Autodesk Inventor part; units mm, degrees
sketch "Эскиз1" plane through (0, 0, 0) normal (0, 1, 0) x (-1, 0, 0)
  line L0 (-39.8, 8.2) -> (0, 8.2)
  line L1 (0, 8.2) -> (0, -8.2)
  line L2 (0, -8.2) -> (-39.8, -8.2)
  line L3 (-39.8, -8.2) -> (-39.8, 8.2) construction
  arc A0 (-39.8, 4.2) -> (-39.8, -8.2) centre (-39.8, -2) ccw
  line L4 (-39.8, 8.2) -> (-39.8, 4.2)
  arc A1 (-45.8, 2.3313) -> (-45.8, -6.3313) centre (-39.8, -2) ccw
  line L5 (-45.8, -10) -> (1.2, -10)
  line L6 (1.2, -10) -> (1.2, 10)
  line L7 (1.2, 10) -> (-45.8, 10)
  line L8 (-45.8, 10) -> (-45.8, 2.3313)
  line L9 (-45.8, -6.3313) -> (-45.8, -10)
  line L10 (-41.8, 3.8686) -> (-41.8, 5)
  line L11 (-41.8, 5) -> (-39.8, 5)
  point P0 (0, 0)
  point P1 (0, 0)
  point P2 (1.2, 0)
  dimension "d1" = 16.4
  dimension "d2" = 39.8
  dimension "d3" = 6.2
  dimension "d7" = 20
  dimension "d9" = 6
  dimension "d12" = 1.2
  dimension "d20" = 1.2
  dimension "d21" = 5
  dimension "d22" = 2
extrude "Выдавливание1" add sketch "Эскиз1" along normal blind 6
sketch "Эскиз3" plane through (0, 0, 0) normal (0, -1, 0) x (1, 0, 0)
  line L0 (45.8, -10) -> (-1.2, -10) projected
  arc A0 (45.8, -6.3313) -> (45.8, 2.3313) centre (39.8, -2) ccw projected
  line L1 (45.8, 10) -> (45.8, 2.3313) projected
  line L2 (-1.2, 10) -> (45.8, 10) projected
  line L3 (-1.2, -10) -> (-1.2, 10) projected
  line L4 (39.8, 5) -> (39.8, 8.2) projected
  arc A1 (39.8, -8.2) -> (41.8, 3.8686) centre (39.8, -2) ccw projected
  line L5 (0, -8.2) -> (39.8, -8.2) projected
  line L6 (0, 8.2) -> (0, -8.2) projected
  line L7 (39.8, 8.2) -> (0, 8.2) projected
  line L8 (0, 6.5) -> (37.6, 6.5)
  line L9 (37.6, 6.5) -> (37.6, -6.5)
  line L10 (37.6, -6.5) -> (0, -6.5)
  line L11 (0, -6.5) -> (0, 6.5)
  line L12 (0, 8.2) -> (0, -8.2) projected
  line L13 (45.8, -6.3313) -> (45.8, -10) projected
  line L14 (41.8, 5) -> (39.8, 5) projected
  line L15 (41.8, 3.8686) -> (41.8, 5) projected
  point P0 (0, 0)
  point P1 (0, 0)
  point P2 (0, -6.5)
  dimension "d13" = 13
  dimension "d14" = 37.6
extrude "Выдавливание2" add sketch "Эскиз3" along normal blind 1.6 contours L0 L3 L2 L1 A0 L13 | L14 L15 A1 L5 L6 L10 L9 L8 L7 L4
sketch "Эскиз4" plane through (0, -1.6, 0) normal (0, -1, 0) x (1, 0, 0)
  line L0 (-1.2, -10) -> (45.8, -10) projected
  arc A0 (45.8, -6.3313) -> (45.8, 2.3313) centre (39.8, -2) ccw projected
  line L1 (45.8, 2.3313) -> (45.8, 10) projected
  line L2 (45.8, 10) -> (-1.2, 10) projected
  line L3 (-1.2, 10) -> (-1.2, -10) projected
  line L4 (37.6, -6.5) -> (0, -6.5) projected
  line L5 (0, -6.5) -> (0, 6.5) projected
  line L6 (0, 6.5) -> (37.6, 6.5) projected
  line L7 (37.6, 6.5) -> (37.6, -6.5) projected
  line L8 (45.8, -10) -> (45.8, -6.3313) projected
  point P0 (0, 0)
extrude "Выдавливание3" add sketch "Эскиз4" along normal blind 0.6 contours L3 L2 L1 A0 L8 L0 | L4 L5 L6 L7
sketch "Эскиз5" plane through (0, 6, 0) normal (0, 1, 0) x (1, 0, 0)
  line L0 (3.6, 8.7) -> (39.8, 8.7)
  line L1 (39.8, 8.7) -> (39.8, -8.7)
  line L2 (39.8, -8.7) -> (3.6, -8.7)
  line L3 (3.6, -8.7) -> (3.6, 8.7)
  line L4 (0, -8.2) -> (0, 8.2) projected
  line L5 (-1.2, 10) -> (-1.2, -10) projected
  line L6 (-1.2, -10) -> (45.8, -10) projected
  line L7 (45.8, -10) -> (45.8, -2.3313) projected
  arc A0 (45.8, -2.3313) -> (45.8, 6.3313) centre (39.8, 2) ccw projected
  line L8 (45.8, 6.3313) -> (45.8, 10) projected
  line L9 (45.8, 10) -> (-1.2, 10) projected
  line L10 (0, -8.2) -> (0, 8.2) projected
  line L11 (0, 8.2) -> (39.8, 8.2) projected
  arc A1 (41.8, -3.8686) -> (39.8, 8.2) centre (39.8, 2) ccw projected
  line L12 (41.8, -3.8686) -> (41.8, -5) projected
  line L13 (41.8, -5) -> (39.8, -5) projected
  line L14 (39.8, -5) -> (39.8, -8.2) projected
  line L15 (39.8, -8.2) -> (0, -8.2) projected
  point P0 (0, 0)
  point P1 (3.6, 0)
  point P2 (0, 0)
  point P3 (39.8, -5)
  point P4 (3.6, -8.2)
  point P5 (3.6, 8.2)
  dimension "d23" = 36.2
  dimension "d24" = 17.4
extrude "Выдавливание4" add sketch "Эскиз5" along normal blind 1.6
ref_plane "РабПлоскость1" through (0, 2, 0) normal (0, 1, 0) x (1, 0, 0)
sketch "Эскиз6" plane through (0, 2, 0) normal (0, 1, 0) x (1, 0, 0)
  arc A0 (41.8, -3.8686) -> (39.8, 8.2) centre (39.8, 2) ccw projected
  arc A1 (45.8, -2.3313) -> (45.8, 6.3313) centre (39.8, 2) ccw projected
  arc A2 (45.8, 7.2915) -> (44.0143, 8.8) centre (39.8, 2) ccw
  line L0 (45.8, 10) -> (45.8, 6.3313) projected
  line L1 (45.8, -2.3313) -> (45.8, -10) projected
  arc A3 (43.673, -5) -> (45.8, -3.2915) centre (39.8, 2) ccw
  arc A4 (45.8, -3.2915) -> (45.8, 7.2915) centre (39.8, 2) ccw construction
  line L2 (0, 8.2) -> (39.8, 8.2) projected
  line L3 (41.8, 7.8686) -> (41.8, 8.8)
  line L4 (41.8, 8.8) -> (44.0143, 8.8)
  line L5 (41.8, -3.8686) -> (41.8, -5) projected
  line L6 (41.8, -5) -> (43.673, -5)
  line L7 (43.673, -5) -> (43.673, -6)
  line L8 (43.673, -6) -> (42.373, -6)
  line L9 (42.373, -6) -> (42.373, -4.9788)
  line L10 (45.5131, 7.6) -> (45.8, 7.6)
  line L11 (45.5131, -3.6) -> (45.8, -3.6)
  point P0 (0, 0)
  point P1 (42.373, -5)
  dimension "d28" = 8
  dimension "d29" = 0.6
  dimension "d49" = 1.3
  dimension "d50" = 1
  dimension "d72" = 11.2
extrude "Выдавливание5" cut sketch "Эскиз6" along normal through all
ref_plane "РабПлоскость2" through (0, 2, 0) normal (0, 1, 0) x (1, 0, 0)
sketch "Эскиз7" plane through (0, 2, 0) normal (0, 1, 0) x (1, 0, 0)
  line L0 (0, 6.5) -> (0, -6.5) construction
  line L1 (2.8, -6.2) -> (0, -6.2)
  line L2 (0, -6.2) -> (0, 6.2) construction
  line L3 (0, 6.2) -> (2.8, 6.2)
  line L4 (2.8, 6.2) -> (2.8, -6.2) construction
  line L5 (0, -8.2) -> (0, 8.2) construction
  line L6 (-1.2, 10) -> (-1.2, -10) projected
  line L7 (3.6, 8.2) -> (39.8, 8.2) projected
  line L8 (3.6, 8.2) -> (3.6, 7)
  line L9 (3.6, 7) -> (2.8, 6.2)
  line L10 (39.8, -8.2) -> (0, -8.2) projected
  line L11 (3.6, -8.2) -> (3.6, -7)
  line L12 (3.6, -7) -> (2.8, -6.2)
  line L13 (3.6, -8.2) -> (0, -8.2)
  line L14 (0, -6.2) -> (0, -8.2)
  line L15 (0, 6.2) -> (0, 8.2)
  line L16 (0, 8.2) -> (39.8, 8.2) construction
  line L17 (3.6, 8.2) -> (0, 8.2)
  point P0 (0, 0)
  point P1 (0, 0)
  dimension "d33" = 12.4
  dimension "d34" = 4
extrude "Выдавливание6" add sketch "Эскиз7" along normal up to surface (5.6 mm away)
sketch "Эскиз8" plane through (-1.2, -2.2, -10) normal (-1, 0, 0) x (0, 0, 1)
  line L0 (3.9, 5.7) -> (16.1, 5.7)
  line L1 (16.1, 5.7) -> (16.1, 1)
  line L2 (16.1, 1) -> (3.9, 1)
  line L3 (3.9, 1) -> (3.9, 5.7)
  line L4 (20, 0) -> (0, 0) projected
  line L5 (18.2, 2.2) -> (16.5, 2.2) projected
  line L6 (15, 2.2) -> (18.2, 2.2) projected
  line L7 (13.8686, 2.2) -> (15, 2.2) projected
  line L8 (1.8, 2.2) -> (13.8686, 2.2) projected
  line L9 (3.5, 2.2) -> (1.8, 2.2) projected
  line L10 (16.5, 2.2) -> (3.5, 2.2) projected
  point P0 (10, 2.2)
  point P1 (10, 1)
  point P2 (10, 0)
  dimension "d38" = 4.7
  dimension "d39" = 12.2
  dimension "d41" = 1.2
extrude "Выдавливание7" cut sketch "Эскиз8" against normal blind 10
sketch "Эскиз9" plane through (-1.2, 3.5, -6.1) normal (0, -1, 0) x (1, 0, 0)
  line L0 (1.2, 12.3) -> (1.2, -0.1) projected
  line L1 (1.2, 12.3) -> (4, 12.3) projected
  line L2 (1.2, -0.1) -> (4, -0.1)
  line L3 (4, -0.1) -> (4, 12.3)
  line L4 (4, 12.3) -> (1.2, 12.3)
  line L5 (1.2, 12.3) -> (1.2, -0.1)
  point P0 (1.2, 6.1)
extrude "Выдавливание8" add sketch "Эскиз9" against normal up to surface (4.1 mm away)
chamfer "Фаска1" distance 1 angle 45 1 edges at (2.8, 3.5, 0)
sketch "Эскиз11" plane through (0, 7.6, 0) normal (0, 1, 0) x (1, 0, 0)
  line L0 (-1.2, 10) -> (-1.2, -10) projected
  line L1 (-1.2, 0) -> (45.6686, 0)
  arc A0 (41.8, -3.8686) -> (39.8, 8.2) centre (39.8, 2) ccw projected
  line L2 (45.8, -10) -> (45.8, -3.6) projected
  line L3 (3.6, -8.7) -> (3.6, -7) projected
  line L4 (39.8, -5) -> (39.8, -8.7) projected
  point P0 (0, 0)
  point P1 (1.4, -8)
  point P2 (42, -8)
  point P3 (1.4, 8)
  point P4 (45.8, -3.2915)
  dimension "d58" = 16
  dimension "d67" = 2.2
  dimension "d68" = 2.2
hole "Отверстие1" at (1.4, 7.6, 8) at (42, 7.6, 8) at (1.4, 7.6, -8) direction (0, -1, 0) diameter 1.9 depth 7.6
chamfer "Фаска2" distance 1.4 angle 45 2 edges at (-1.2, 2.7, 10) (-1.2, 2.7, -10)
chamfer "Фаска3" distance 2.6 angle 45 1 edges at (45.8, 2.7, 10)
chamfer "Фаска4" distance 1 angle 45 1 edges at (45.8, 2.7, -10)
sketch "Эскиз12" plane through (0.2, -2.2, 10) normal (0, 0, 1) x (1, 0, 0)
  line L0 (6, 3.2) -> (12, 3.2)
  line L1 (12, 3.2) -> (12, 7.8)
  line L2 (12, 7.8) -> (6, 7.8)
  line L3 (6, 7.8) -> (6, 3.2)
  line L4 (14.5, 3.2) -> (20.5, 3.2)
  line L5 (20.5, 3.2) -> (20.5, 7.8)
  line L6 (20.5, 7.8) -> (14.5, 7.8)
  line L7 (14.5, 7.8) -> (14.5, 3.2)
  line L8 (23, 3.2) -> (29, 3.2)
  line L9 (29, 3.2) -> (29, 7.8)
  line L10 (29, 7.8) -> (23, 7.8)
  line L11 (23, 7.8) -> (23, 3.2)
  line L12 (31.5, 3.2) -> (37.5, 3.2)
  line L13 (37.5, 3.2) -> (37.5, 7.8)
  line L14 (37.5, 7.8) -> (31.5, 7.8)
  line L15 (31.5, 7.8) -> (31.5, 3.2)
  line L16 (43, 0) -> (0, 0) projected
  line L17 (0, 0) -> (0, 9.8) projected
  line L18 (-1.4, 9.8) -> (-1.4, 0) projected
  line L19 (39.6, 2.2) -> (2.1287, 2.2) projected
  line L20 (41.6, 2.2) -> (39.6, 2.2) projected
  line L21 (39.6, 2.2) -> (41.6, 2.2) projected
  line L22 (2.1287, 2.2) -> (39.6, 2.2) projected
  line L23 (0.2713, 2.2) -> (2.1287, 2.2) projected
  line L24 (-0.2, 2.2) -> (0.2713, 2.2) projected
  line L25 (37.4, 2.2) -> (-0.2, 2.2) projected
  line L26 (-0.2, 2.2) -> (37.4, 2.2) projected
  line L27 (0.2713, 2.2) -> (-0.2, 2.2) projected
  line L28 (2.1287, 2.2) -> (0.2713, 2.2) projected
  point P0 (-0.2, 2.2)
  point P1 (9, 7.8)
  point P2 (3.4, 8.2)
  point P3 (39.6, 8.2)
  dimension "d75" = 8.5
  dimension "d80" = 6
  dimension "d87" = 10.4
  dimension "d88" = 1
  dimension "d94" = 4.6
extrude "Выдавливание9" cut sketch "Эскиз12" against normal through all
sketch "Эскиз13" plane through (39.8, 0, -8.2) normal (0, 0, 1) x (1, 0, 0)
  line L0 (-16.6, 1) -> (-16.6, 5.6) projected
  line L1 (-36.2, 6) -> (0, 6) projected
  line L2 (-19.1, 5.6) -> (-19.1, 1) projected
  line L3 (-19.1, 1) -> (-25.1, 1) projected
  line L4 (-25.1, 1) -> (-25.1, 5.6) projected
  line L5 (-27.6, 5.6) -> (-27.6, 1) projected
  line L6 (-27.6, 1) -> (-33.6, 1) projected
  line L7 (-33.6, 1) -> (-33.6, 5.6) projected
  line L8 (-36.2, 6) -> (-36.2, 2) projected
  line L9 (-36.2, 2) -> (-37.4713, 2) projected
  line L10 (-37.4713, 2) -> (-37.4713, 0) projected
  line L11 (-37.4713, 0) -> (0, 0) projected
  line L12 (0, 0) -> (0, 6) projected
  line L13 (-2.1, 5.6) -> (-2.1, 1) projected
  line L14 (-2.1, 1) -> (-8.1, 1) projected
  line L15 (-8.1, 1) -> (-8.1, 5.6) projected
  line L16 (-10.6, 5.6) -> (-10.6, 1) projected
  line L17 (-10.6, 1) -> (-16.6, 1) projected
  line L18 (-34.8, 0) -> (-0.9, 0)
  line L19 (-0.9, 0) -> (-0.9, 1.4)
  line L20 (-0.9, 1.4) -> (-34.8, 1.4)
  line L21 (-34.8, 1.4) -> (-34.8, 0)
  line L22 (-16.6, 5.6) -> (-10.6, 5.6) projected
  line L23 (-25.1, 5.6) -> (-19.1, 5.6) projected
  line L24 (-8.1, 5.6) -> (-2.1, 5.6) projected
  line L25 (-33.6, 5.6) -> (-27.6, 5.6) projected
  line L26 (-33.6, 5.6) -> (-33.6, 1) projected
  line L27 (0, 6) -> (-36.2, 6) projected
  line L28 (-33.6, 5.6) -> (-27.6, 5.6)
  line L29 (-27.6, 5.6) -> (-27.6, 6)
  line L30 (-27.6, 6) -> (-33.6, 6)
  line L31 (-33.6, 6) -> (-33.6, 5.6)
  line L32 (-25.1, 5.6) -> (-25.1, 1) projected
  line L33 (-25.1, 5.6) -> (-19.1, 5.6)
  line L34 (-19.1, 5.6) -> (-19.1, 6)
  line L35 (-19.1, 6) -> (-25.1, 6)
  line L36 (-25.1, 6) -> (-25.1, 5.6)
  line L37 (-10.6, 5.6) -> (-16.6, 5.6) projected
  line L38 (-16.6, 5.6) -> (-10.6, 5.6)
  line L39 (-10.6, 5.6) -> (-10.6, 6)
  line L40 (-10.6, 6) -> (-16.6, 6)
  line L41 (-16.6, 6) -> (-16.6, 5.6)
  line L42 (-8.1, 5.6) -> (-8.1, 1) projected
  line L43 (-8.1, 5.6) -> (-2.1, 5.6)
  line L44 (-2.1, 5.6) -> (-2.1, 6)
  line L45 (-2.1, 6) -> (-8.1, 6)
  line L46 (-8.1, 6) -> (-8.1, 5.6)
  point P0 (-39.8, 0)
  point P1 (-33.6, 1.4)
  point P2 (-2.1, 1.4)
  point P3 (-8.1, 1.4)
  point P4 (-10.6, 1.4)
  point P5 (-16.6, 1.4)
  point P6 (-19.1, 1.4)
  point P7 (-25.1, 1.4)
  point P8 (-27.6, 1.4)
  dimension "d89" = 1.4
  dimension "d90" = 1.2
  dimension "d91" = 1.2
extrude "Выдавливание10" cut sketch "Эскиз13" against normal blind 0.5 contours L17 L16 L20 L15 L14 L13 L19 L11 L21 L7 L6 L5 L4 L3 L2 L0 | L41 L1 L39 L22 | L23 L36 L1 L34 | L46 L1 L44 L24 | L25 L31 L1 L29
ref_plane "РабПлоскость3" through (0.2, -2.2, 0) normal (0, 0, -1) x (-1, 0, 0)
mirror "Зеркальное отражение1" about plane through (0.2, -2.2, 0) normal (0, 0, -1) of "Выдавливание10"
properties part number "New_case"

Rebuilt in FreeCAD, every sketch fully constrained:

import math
import FreeCAD as App
import Part
import Sketcher
Q = App.Units.Quantity


def edges_at(feature, points):
    """Names of the edges that pass closest to the given points."""
    edges = feature.Shape.Edges
    near = lambda p: min(range(len(edges)), key=lambda i: edges[i].distToShape(Part.Vertex(*p))[0])
    return sorted({f"Edge{near(p) + 1}" for p in points})

doc = App.newDocument("Part")
body = doc.addObject("PartDesign::Body", "Body")

sketch1 = body.newObject("Sketcher::SketchObject", "Sketch")
sketch1.AttachmentSupport = (doc.getObject("XZ_Plane"), [""])
sketch1.MapMode = "FlatFace"
sketch1.addGeometry([
    Part.LineSegment(App.Vector(45.8, 10, 0), App.Vector(45.8, 2.3, 0)),
    Part.ArcOfCircle(Part.Circle(App.Vector(39.8, -2, 0), App.Vector(0, 0, 1), 7.4), math.radians(-36), math.radians(36)),
    Part.LineSegment(App.Vector(45.8, -6.3, 0), App.Vector(45.8, -10, 0)),
    Part.LineSegment(App.Vector(45.8, -10, 0), App.Vector(-1.2, -10, 0)),
    Part.LineSegment(App.Vector(-1.2, -10, 0), App.Vector(-1.2, 10, 0)),
    Part.LineSegment(App.Vector(-1.2, 10, 0), App.Vector(45.8, 10, 0)),
    Part.LineSegment(App.Vector(39.8, 5, 0), App.Vector(39.8, 8.2, 0)),
    Part.LineSegment(App.Vector(39.8, 8.2, 0), App.Vector(0, 8.2, 0)),
    Part.LineSegment(App.Vector(0, 8.2, 0), App.Vector(0, -8.2, 0)),
    Part.LineSegment(App.Vector(0, -8.2, 0), App.Vector(39.8, -8.2, 0)),
    Part.ArcOfCircle(Part.Circle(App.Vector(39.8, -2, 0), App.Vector(0, 0, 1), 6.2), math.radians(-90), math.radians(71)),
    Part.LineSegment(App.Vector(41.8, 3.9, 0), App.Vector(41.8, 5, 0)),
    Part.LineSegment(App.Vector(41.8, 5, 0), App.Vector(39.8, 5, 0)),
], False)
sketch1.addConstraint([
    Sketcher.Constraint("Coincident", 0, 2, 1, 2),
    Sketcher.Constraint("Coincident", 1, 1, 2, 1),
    Sketcher.Constraint("Coincident", 2, 2, 3, 1),
    Sketcher.Constraint("Coincident", 3, 2, 4, 1),
    Sketcher.Constraint("Coincident", 4, 2, 5, 1),
    Sketcher.Constraint("Coincident", 5, 2, 0, 1),
    Sketcher.Constraint("Coincident", 6, 2, 7, 1),
    Sketcher.Constraint("Coincident", 7, 2, 8, 1),
    Sketcher.Constraint("Coincident", 8, 2, 9, 1),
    Sketcher.Constraint("Tangent", 9, 2, 10, 1),
    Sketcher.Constraint("Coincident", 10, 2, 11, 1),
    Sketcher.Constraint("Coincident", 11, 2, 12, 1),
    Sketcher.Constraint("Coincident", 12, 2, 6, 1),
    Sketcher.Constraint("Vertical", 0),
    Sketcher.Constraint("Vertical", 2),
    Sketcher.Constraint("Horizontal", 3),
    Sketcher.Constraint("Vertical", 4),
    Sketcher.Constraint("Horizontal", 5),
    Sketcher.Constraint("Vertical", 6),
    Sketcher.Constraint("Horizontal", 7),
    Sketcher.Constraint("Vertical", 8),
    Sketcher.Constraint("Horizontal", 9),
    Sketcher.Constraint("Vertical", 11),
    Sketcher.Constraint("Horizontal", 12),
    Sketcher.Constraint("Coincident", 10, 3, 1, 3),
    Sketcher.Constraint("Symmetric", 7, 2, 8, 2, -1, 1),
    Sketcher.Constraint("Symmetric", 2, 2, 5, 2, -1),
    Sketcher.Constraint("Vertical", 10, 3, 6, 2),
    Sketcher.Constraint("Radius", 10, Q("6.2 mm")),
    Sketcher.Constraint("DistanceX", 12, 2, 12, 1, Q("2 mm")),
    Sketcher.Constraint("DistanceY", 4, 1, 4, 2, Q("20 mm")),
    Sketcher.Constraint("DistanceX", 7, 2, 7, 1, Q("39.8 mm")),
    Sketcher.Constraint("DistanceY", 8, 2, 8, 1, Q("16.4 mm")),
    Sketcher.Constraint("DistanceY", -1, 1, 11, 2, Q("5 mm")),
    Sketcher.Constraint("DistanceX", 1, 3, 0, 2, Q("6 mm")),
    Sketcher.Constraint("DistanceX", 3, 2, -1, 1, Q("1.2 mm")),
    Sketcher.Constraint("Radius", 1, Q("7.4 mm")),
])
pad1 = body.newObject("PartDesign::Pad", "Pad")
pad1.Profile = sketch1
pad1.Length = 6
pad1.Reversed = True

sketch2 = body.newObject("Sketcher::SketchObject", "Sketch001")
sketch2.AttachmentSupport = (doc.getObject("XZ_Plane"), [""])
sketch2.MapMode = "FlatFace"
sketch2.addGeometry([
    Part.LineSegment(App.Vector(-1.2, -10, 0), App.Vector(45.8, -10, 0)),
    Part.LineSegment(App.Vector(45.8, -10, 0), App.Vector(45.8, -6.3, 0)),
    Part.ArcOfCircle(Part.Circle(App.Vector(39.8, -2, 0), App.Vector(0, 0, 1), 7.4), math.radians(-36), math.radians(36)),
    Part.LineSegment(App.Vector(45.8, 2.3, 0), App.Vector(45.8, 10, 0)),
    Part.LineSegment(App.Vector(45.8, 10, 0), App.Vector(-1.2, 10, 0)),
    Part.LineSegment(App.Vector(-1.2, 10, 0), App.Vector(-1.2, -10, 0)),
    Part.LineSegment(App.Vector(0, -6.5, 0), App.Vector(0, 6.5, 0)),
    Part.LineSegment(App.Vector(0, 6.5, 0), App.Vector(37.6, 6.5, 0)),
    Part.LineSegment(App.Vector(37.6, 6.5, 0), App.Vector(37.6, -6.5, 0)),
    Part.LineSegment(App.Vector(37.6, -6.5, 0), App.Vector(0, -6.5, 0)),
], False)
sketch2.addConstraint([
    Sketcher.Constraint("Coincident", 0, 2, 1, 1),
    Sketcher.Constraint("Coincident", 1, 2, 2, 1),
    Sketcher.Constraint("Coincident", 2, 2, 3, 1),
    Sketcher.Constraint("Coincident", 3, 2, 4, 1),
    Sketcher.Constraint("Coincident", 4, 2, 5, 1),
    Sketcher.Constraint("Coincident", 5, 2, 0, 1),
    Sketcher.Constraint("Coincident", 6, 2, 7, 1),
    Sketcher.Constraint("Coincident", 7, 2, 8, 1),
    Sketcher.Constraint("Coincident", 8, 2, 9, 1),
    Sketcher.Constraint("Coincident", 9, 2, 6, 1),
    Sketcher.Constraint("Horizontal", 0),
    Sketcher.Constraint("Vertical", 1),
    Sketcher.Constraint("Vertical", 3),
    Sketcher.Constraint("Horizontal", 4),
    Sketcher.Constraint("Vertical", 5),
    Sketcher.Constraint("Vertical", 6),
    Sketcher.Constraint("Horizontal", 7),
    Sketcher.Constraint("Vertical", 8),
    Sketcher.Constraint("Horizontal", 9),
    Sketcher.Constraint("Symmetric", 6, 2, 9, 2, -1, 1),
    Sketcher.Constraint("Symmetric", 0, 2, 3, 2, -1),
    Sketcher.Constraint("DistanceY", 6, 1, 6, 2, Q("13 mm")),
    Sketcher.Constraint("DistanceX", 7, 1, 7, 2, Q("37.6 mm")),
    Sketcher.Constraint("Radius", 2, Q("7.4 mm")),
    Sketcher.Constraint("DistanceX", 0, 1, 0, 2, Q("47 mm")),
    Sketcher.Constraint("DistanceY", 5, 2, 5, 1, Q("20 mm")),
    Sketcher.Constraint("DistanceY", 2, 3, -1, 1, Q("2 mm")),
    Sketcher.Constraint("DistanceX", 2, 3, 0, 2, Q("6 mm")),
    Sketcher.Constraint("DistanceX", -1, 1, 2, 3, Q("39.8 mm")),
])
pad2 = body.newObject("PartDesign::Pad", "Pad001")
pad2.Profile = sketch2
pad2.Length = 1.6

sketch3 = body.newObject("Sketcher::SketchObject", "Sketch002")
sketch3.AttachmentSupport = (doc.getObject("XZ_Plane"), [""])
sketch3.MapMode = "FlatFace"
sketch3.AttachmentOffset = App.Placement(App.Vector(0, 0, 1.6), App.Rotation())
sketch3.addGeometry([
    Part.LineSegment(App.Vector(-1.2, 10, 0), App.Vector(-1.2, -10, 0)),
    Part.LineSegment(App.Vector(-1.2, -10, 0), App.Vector(45.8, -10, 0)),
    Part.LineSegment(App.Vector(45.8, -10, 0), App.Vector(45.8, -6.3, 0)),
    Part.ArcOfCircle(Part.Circle(App.Vector(39.8, -2, 0), App.Vector(0, 0, 1), 7.4), math.radians(-36), math.radians(36)),
    Part.LineSegment(App.Vector(45.8, 2.3, 0), App.Vector(45.8, 10, 0)),
    Part.LineSegment(App.Vector(45.8, 10, 0), App.Vector(-1.2, 10, 0)),
], False)
sketch3.addConstraint([
    Sketcher.Constraint("Coincident", 0, 2, 1, 1),
    Sketcher.Constraint("Coincident", 1, 2, 2, 1),
    Sketcher.Constraint("Coincident", 2, 2, 3, 1),
    Sketcher.Constraint("Coincident", 3, 2, 4, 1),
    Sketcher.Constraint("Coincident", 4, 2, 5, 1),
    Sketcher.Constraint("Coincident", 5, 2, 0, 1),
    Sketcher.Constraint("Vertical", 0),
    Sketcher.Constraint("Horizontal", 1),
    Sketcher.Constraint("Vertical", 2),
    Sketcher.Constraint("Vertical", 4),
    Sketcher.Constraint("Horizontal", 5),
    Sketcher.Constraint("Symmetric", 1, 2, 4, 2, -1),
    Sketcher.Constraint("Radius", 3, Q("7.4 mm")),
    Sketcher.Constraint("DistanceX", 1, 1, 1, 2, Q("47 mm")),
    Sketcher.Constraint("DistanceY", 0, 2, 0, 1, Q("20 mm")),
    Sketcher.Constraint("DistanceY", 3, 3, -1, 1, Q("2 mm")),
    Sketcher.Constraint("DistanceX", 0, 2, 3, 3, Q("41 mm")),
    Sketcher.Constraint("DistanceX", -1, 1, 3, 3, Q("39.8 mm")),
])
pad3 = body.newObject("PartDesign::Pad", "Pad002")
pad3.Profile = sketch3
pad3.Length = 0.6

sketch4 = body.newObject("Sketcher::SketchObject", "Sketch003")
sketch4.AttachmentSupport = (doc.getObject("XZ_Plane"), [""])
sketch4.MapMode = "FlatFace"
sketch4.AttachmentOffset = App.Placement(App.Vector(0, 0, -6), App.Rotation())
sketch4.addGeometry([
    Part.LineSegment(App.Vector(45.8, -10, 0), App.Vector(-1.2, -10, 0)),
    Part.LineSegment(App.Vector(-1.2, -10, 0), App.Vector(-1.2, 10, 0)),
    Part.LineSegment(App.Vector(-1.2, 10, 0), App.Vector(45.8, 10, 0)),
    Part.LineSegment(App.Vector(45.8, 10, 0), App.Vector(45.8, 2.3, 0)),
    Part.ArcOfCircle(Part.Circle(App.Vector(39.8, -2, 0), App.Vector(0, 0, 1), 7.4), math.radians(-36), math.radians(36)),
    Part.LineSegment(App.Vector(45.8, -6.3, 0), App.Vector(45.8, -10, 0)),
    Part.LineSegment(App.Vector(3.6, -8.2, 0), App.Vector(3.6, -8.7, 0)),
    Part.LineSegment(App.Vector(3.6, -8.7, 0), App.Vector(39.8, -8.7, 0)),
    Part.LineSegment(App.Vector(39.8, -8.7, 0), App.Vector(39.8, -8.2, 0)),
    Part.ArcOfCircle(Part.Circle(App.Vector(39.8, -2, 0), App.Vector(0, 0, 1), 6.2), math.radians(-90), math.radians(71)),
    Part.LineSegment(App.Vector(41.8, 3.9, 0), App.Vector(41.8, 5, 0)),
    Part.LineSegment(App.Vector(41.8, 5, 0), App.Vector(39.8, 5, 0)),
    Part.LineSegment(App.Vector(39.8, 5, 0), App.Vector(39.8, 8.7, 0)),
    Part.LineSegment(App.Vector(39.8, 8.7, 0), App.Vector(3.6, 8.7, 0)),
    Part.LineSegment(App.Vector(3.6, 8.7, 0), App.Vector(3.6, 8.2, 0)),
    Part.LineSegment(App.Vector(3.6, 8.2, 0), App.Vector(0, 8.2, 0)),
    Part.LineSegment(App.Vector(0, 8.2, 0), App.Vector(0, -8.2, 0)),
    Part.LineSegment(App.Vector(0, -8.2, 0), App.Vector(3.6, -8.2, 0)),
], False)
sketch4.addConstraint([
    Sketcher.Constraint("Coincident", 0, 2, 1, 1),
    Sketcher.Constraint("Coincident", 1, 2, 2, 1),
    Sketcher.Constraint("Coincident", 2, 2, 3, 1),
    Sketcher.Constraint("Coincident", 3, 2, 4, 2),
    Sketcher.Constraint("Coincident", 4, 1, 5, 1),
    Sketcher.Constraint("Coincident", 5, 2, 0, 1),
    Sketcher.Constraint("Coincident", 6, 2, 7, 1),
    Sketcher.Constraint("Coincident", 7, 2, 8, 1),
    Sketcher.Constraint("Coincident", 8, 2, 9, 1),
    Sketcher.Constraint("Coincident", 9, 2, 10, 1),
    Sketcher.Constraint("Coincident", 10, 2, 11, 1),
    Sketcher.Constraint("Coincident", 11, 2, 12, 1),
    Sketcher.Constraint("Coincident", 12, 2, 13, 1),
    Sketcher.Constraint("Coincident", 13, 2, 14, 1),
    Sketcher.Constraint("Coincident", 14, 2, 15, 1),
    Sketcher.Constraint("Coincident", 15, 2, 16, 1),
    Sketcher.Constraint("Coincident", 16, 2, 17, 1),
    Sketcher.Constraint("Coincident", 17, 2, 6, 1),
    Sketcher.Constraint("Horizontal", 0),
    Sketcher.Constraint("Vertical", 1),
    Sketcher.Constraint("Horizontal", 2),
    Sketcher.Constraint("Vertical", 3),
    Sketcher.Constraint("Vertical", 5),
    Sketcher.Constraint("Vertical", 6),
    Sketcher.Constraint("Horizontal", 7),
    Sketcher.Constraint("Vertical", 8),
    Sketcher.Constraint("Vertical", 10),
    Sketcher.Constraint("Horizontal", 11),
    Sketcher.Constraint("Vertical", 12),
    Sketcher.Constraint("Horizontal", 13),
    Sketcher.Constraint("Vertical", 14),
    Sketcher.Constraint("Horizontal", 15),
    Sketcher.Constraint("Vertical", 16),
    Sketcher.Constraint("Horizontal", 17),
    Sketcher.Constraint("Coincident", 9, 3, 4, 3),
    Sketcher.Constraint("Symmetric", 15, 2, 16, 2, -1, 1),
    Sketcher.Constraint("Symmetric", 2, 2, 5, 2, -1),
    Sketcher.Constraint("Symmetric", 7, 2, 12, 2, -1),
    Sketcher.Constraint("Horizontal", 8, 2, 16, 2),
    Sketcher.Constraint("Vertical", 9, 3, 7, 2),
    Sketcher.Constraint("Vertical", 6, 2, 13, 2),
    Sketcher.Constraint("DistanceX", 7, 1, 7, 2, Q("36.2 mm")),
    Sketcher.Constraint("Radius", 4, Q("7.4 mm")),
    Sketcher.Constraint("Radius", 9, Q("6.2 mm")),
    Sketcher.Constraint("DistanceY", 6, 2, 13, 2, Q("17.4 mm")),
    Sketcher.Constraint("DistanceX", 0, 2, 0, 1, Q("47 mm")),
    Sketcher.Constraint("DistanceX", 11, 2, 11, 1, Q("2 mm")),
    Sketcher.Constraint("DistanceY", 1, 1, 1, 2, Q("20 mm")),
    Sketcher.Constraint("DistanceX", 15, 2, 15, 1, Q("3.6 mm")),
    Sketcher.Constraint("DistanceY", 6, 2, 6, 1, Q("0.5 mm")),
    Sketcher.Constraint("DistanceY", 12, 1, 12, 2, Q("3.7 mm")),
    Sketcher.Constraint("DistanceX", 0, 2, 4, 3, Q("41 mm")),
])
pad4 = body.newObject("PartDesign::Pad", "Pad003")
pad4.Profile = sketch4
pad4.Length = 1.6
pad4.Reversed = True

sketch5 = body.newObject("Sketcher::SketchObject", "Sketch004")
sketch5.AttachmentSupport = (doc.getObject("XZ_Plane"), [""])
sketch5.MapMode = "FlatFace"
sketch5.AttachmentOffset = App.Placement(App.Vector(0, 0, -2), App.Rotation())
sketch5.addGeometry([
    Part.ArcOfCircle(Part.Circle(App.Vector(39.8, -2, 0), App.Vector(0, 0, 1), 6.2), math.radians(-71), math.radians(71)),
    Part.LineSegment(App.Vector(41.8, 3.87, 0), App.Vector(41.8, 5, 0)),
    Part.LineSegment(App.Vector(41.8, 5, 0), App.Vector(42.37, 5, 0)),
    Part.LineSegment(App.Vector(42.37, 5, 0), App.Vector(42.37, 6, 0)),
    Part.LineSegment(App.Vector(42.37, 6, 0), App.Vector(43.67, 6, 0)),
    Part.LineSegment(App.Vector(43.67, 6, 0), App.Vector(43.67, 5, 0)),
    Part.ArcOfCircle(Part.Circle(App.Vector(39.8, -2, 0), App.Vector(0, 0, 1), 8), math.radians(44.43), math.radians(61.04)),
    Part.LineSegment(App.Vector(45.51, 3.6, 0), App.Vector(45.8, 3.6, 0)),
    Part.LineSegment(App.Vector(45.8, 3.6, 0), App.Vector(45.8, 2.33, 0)),
    Part.ArcOfCircle(Part.Circle(App.Vector(39.8, -2, 0), App.Vector(0, 0, 1), 7.4), math.radians(-36), math.radians(36)),
    Part.LineSegment(App.Vector(45.8, -6.33, 0), App.Vector(45.8, -7.6, 0)),
    Part.LineSegment(App.Vector(45.8, -7.6, 0), App.Vector(45.51, -7.6, 0)),
    Part.ArcOfCircle(Part.Circle(App.Vector(39.8, -2, 0), App.Vector(0, 0, 1), 8), math.radians(-58.21), math.radians(-44.43)),
    Part.LineSegment(App.Vector(44.01, -8.8, 0), App.Vector(41.8, -8.8, 0)),
    Part.LineSegment(App.Vector(41.8, -8.8, 0), App.Vector(41.8, -7.87, 0)),
], False)
sketch5.addConstraint([
    Sketcher.Constraint("Coincident", 0, 2, 1, 1),
    Sketcher.Constraint("Coincident", 1, 2, 2, 1),
    Sketcher.Constraint("Coincident", 2, 2, 3, 1),
    Sketcher.Constraint("Coincident", 3, 2, 4, 1),
    Sketcher.Constraint("Coincident", 4, 2, 5, 1),
    Sketcher.Constraint("Coincident", 5, 2, 6, 2),
    Sketcher.Constraint("Coincident", 6, 1, 7, 1),
    Sketcher.Constraint("Coincident", 7, 2, 8, 1),
    Sketcher.Constraint("Coincident", 8, 2, 9, 2),
    Sketcher.Constraint("Coincident", 9, 1, 10, 1),
    Sketcher.Constraint("Coincident", 10, 2, 11, 1),
    Sketcher.Constraint("Coincident", 11, 2, 12, 2),
    Sketcher.Constraint("Coincident", 12, 1, 13, 1),
    Sketcher.Constraint("Coincident", 13, 2, 14, 1),
    Sketcher.Constraint("Coincident", 14, 2, 0, 1),
    Sketcher.Constraint("Vertical", 1),
    Sketcher.Constraint("Horizontal", 2),
    Sketcher.Constraint("Vertical", 3),
    Sketcher.Constraint("Horizontal", 4),
    Sketcher.Constraint("Vertical", 5),
    Sketcher.Constraint("Horizontal", 7),
    Sketcher.Constraint("Vertical", 8),
    Sketcher.Constraint("Vertical", 10),
    Sketcher.Constraint("Horizontal", 11),
    Sketcher.Constraint("Horizontal", 13),
    Sketcher.Constraint("Vertical", 14),
    Sketcher.Constraint("Coincident", 6, 3, 0, 3),
    Sketcher.Constraint("Coincident", 9, 3, 0, 3),
    Sketcher.Constraint("Horizontal", 2, 2, 5, 2),
    Sketcher.Constraint("Vertical", 8, 2, 9, 1),
    Sketcher.Constraint("Vertical", 6, 1, 11, 2),
    Sketcher.Constraint("Vertical", 1, 2, 13, 2),
    Sketcher.Constraint("Equal", 8, 10),
    Sketcher.Constraint("Radius", 6, Q("8 mm")),
    Sketcher.Constraint("DistanceY", 3, 1, 3, 2, Q("1 mm")),
    Sketcher.Constraint("DistanceX", 4, 1, 4, 2, Q("1.3 mm")),
    Sketcher.Constraint("DistanceY", 0, 3, 3, 2, Q("8 mm")),
    Sketcher.Constraint("Radius", 0, Q("6.2 mm")),
    Sketcher.Constraint("Radius", 9, Q("7.4 mm")),
    Sketcher.Constraint("DistanceY", 0, 3, -1, 1, Q("2 mm")),
    Sketcher.Constraint("Radius", 12, Q("8.001 mm")),
    Sketcher.Constraint("DistanceX", 0, 3, 0, 2, Q("2 mm")),
    Sketcher.Constraint("DistanceX", 0, 2, 7, 2, Q("4 mm")),
    Sketcher.Constraint("DistanceX", -1, 1, 0, 3, Q("39.8 mm")),
    Sketcher.Constraint("DistanceY", -1, 1, 6, 1, Q("3.6 mm")),
    Sketcher.Constraint("DistanceY", 12, 1, -1, 1, Q("8.8 mm")),
    Sketcher.Constraint("DistanceX", 13, 2, 13, 1, Q("2.2143 mm")),
])
pocket1 = body.newObject("PartDesign::Pocket", "Pocket")
pocket1.Profile = sketch5
pocket1.Type = "ThroughAll"

sketch6 = body.newObject("Sketcher::SketchObject", "Sketch005")
sketch6.AttachmentSupport = (doc.getObject("XZ_Plane"), [""])
sketch6.MapMode = "FlatFace"
sketch6.AttachmentOffset = App.Placement(App.Vector(0, 0, -2), App.Rotation())
sketch6.addGeometry([
    Part.LineSegment(App.Vector(3.6, 7, 0), App.Vector(2.8, 6.2, 0)),
    Part.LineSegment(App.Vector(2.8, 6.2, 0), App.Vector(0, 6.2, 0)),
    Part.LineSegment(App.Vector(0, 6.2, 0), App.Vector(0, 8.2, 0)),
    Part.LineSegment(App.Vector(0, 8.2, 0), App.Vector(3.6, 8.2, 0)),
    Part.LineSegment(App.Vector(3.6, 8.2, 0), App.Vector(3.6, 7, 0)),
    Part.LineSegment(App.Vector(0, -8.2, 0), App.Vector(0, -6.2, 0)),
    Part.LineSegment(App.Vector(0, -6.2, 0), App.Vector(2.8, -6.2, 0)),
    Part.LineSegment(App.Vector(2.8, -6.2, 0), App.Vector(3.6, -7, 0)),
    Part.LineSegment(App.Vector(3.6, -7, 0), App.Vector(3.6, -8.2, 0)),
    Part.LineSegment(App.Vector(3.6, -8.2, 0), App.Vector(0, -8.2, 0)),
], False)
sketch6.addConstraint([
    Sketcher.Constraint("Coincident", 0, 2, 1, 1),
    Sketcher.Constraint("Coincident", 1, 2, 2, 1),
    Sketcher.Constraint("Coincident", 2, 2, 3, 1),
    Sketcher.Constraint("Coincident", 3, 2, 4, 1),
    Sketcher.Constraint("Coincident", 4, 2, 0, 1),
    Sketcher.Constraint("Coincident", 5, 2, 6, 1),
    Sketcher.Constraint("Coincident", 6, 2, 7, 1),
    Sketcher.Constraint("Coincident", 7, 2, 8, 1),
    Sketcher.Constraint("Coincident", 8, 2, 9, 1),
    Sketcher.Constraint("Coincident", 9, 2, 5, 1),
    Sketcher.Constraint("Horizontal", 1),
    Sketcher.Constraint("Vertical", 2),
    Sketcher.Constraint("Horizontal", 3),
    Sketcher.Constraint("Vertical", 4),
    Sketcher.Constraint("Vertical", 5),
    Sketcher.Constraint("Horizontal", 6),
    Sketcher.Constraint("Vertical", 8),
    Sketcher.Constraint("Horizontal", 9),
    Sketcher.Constraint("Symmetric", 1, 2, 5, 2, -1, 1),
    Sketcher.Constraint("Symmetric", 4, 2, 7, 2, -1),
    Sketcher.Constraint("Symmetric", 2, 2, 9, 2, -1),
    Sketcher.Constraint("Perpendicular", 0, 7),
    Sketcher.Constraint("Vertical", 0, 2, 6, 2),
    Sketcher.Constraint("DistanceY", 5, 2, 1, 2, Q("12.4 mm")),
    Sketcher.Constraint("DistanceY", 2, 1, 2, 2, Q("2 mm")),
    Sketcher.Constraint("DistanceX", 1, 2, 1, 1, Q("2.8 mm")),
    Sketcher.Constraint("DistanceX", 3, 1, 3, 2, Q("3.6 mm")),
])
pad5 = body.newObject("PartDesign::Pad", "Pad004")
pad5.Profile = sketch6
pad5.Length = 5.6
pad5.Reversed = True

sketch7 = body.newObject("Sketcher::SketchObject", "Sketch006")
sketch7.AttachmentSupport = (doc.getObject("YZ_Plane"), [""])
sketch7.MapMode = "FlatFace"
sketch7.AttachmentOffset = App.Placement(App.Vector(0, 0, -1.2), App.Rotation())
sketch7.addGeometry([
    Part.LineSegment(App.Vector(3.5, 6.1, 0), App.Vector(3.5, -6.1, 0)),
    Part.LineSegment(App.Vector(3.5, -6.1, 0), App.Vector(-1.2, -6.1, 0)),
    Part.LineSegment(App.Vector(-1.2, -6.1, 0), App.Vector(-1.2, 6.1, 0)),
    Part.LineSegment(App.Vector(-1.2, 6.1, 0), App.Vector(3.5, 6.1, 0)),
], False)
sketch7.addConstraint([
    Sketcher.Constraint("Coincident", 0, 2, 1, 1),
    Sketcher.Constraint("Coincident", 1, 2, 2, 1),
    Sketcher.Constraint("Coincident", 2, 2, 3, 1),
    Sketcher.Constraint("Coincident", 3, 2, 0, 1),
    Sketcher.Constraint("Vertical", 0),
    Sketcher.Constraint("Horizontal", 1),
    Sketcher.Constraint("Vertical", 2),
    Sketcher.Constraint("Horizontal", 3),
    Sketcher.Constraint("DistanceX", 1, 2, 1, 1, Q("4.7 mm")),
    Sketcher.Constraint("DistanceY", 0, 2, 0, 1, Q("12.2 mm")),
    Sketcher.Constraint("DistanceX", 1, 2, -1, 1, Q("1.2 mm")),
    Sketcher.Constraint("DistanceY", 0, 2, -1, 1, Q("6.1 mm")),
])
pocket2 = body.newObject("PartDesign::Pocket", "Pocket001")
pocket2.Profile = sketch7
pocket2.Length = 10
pocket2.Reversed = True

sketch8 = body.newObject("Sketcher::SketchObject", "Sketch007")
sketch8.AttachmentSupport = (doc.getObject("XZ_Plane"), [""])
sketch8.MapMode = "FlatFace"
sketch8.AttachmentOffset = App.Placement(App.Vector(0, 0, -3.5), App.Rotation())
sketch8.addGeometry([
    Part.LineSegment(App.Vector(2.8, 6.2, 0), App.Vector(0, 6.2, 0)),
    Part.LineSegment(App.Vector(0, 6.2, 0), App.Vector(0, -6.2, 0)),
    Part.LineSegment(App.Vector(0, -6.2, 0), App.Vector(2.8, -6.2, 0)),
    Part.LineSegment(App.Vector(2.8, -6.2, 0), App.Vector(2.8, 6.2, 0)),
], False)
sketch8.addConstraint([
    Sketcher.Constraint("Coincident", 0, 2, 1, 1),
    Sketcher.Constraint("Coincident", 1, 2, 2, 1),
    Sketcher.Constraint("Coincident", 2, 2, 3, 1),
    Sketcher.Constraint("Coincident", 3, 2, 0, 1),
    Sketcher.Constraint("Horizontal", 0),
    Sketcher.Constraint("Vertical", 1),
    Sketcher.Constraint("Horizontal", 2),
    Sketcher.Constraint("Vertical", 3),
    Sketcher.Constraint("Symmetric", 0, 2, 1, 2, -1, 1),
    Sketcher.Constraint("DistanceX", 0, 2, 0, 1, Q("2.8 mm")),
    Sketcher.Constraint("DistanceY", 1, 2, 1, 1, Q("12.4 mm")),
])
pad6 = body.newObject("PartDesign::Pad", "Pad005")
pad6.Profile = sketch8
pad6.Length = 4.1
pad6.Reversed = True
doc.recompute()

chamfer = body.newObject("PartDesign::Chamfer", "Chamfer")
chamfer.Base = (pad6, edges_at(pad6, [(2.8, 3.5, 0)]))
chamfer.Size = 1

sketch9 = body.newObject("Sketcher::SketchObject", "Sketch008")
sketch9.AttachmentSupport = (doc.getObject("XZ_Plane"), [""])
sketch9.MapMode = "FlatFace"
sketch9.AttachmentOffset = App.Placement(App.Vector(0, 0, -7.6), App.Rotation())
sketch9.addGeometry([
    Part.Circle(App.Vector(1.4, 8, 0), App.Vector(0, 0, 1), 0.9),
    Part.Circle(App.Vector(42, 8, 0), App.Vector(0, 0, 1), 0.9),
    Part.Circle(App.Vector(1.4, -8, 0), App.Vector(0, 0, 1), 0.9),
], False)
sketch9.addConstraint([
    Sketcher.Constraint("Equal", 0, 1),
    Sketcher.Constraint("Equal", 1, 2),
    Sketcher.Constraint("Symmetric", 0, 3, 2, 3, -1),
    Sketcher.Constraint("Horizontal", 0, 3, 1, 3),
    Sketcher.Constraint("Diameter", 0, Q("1.9 mm")),
    Sketcher.Constraint("DistanceY", -1, 1, 0, 3, Q("8 mm")),
    Sketcher.Constraint("DistanceX", -1, 1, 1, 3, Q("42 mm")),
    Sketcher.Constraint("DistanceX", -1, 1, 0, 3, Q("1.4 mm")),
])
doc.recompute()
hole = body.newObject("PartDesign::Hole", "Hole")
hole.Profile = sketch9
hole.ThreadType = "None"
hole.Diameter = 1.9
hole.DepthType = "Dimension"
hole.Depth = 7.6
hole.DrillPoint = "Flat"
hole.Reversed = True
doc.recompute()

chamfer2 = body.newObject("PartDesign::Chamfer", "Chamfer001")
chamfer2.Base = (hole, edges_at(hole, [(-1.2, 2.7, 10), (-1.2, 2.7, -10)]))
chamfer2.Size = 1.4
doc.recompute()

chamfer3 = body.newObject("PartDesign::Chamfer", "Chamfer002")
chamfer3.Base = (chamfer2, edges_at(chamfer2, [(45.8, 2.7, 10)]))
chamfer3.Size = 2.6
doc.recompute()

chamfer4 = body.newObject("PartDesign::Chamfer", "Chamfer003")
chamfer4.Base = (chamfer3, edges_at(chamfer3, [(45.8, 2.7, -10)]))
chamfer4.Size = 1

sketch10 = body.newObject("Sketcher::SketchObject", "Sketch009")
sketch10.AttachmentSupport = (doc.getObject("XY_Plane"), [""])
sketch10.MapMode = "FlatFace"
sketch10.AttachmentOffset = App.Placement(App.Vector(0, 0, 10), App.Rotation())
sketch10.addGeometry([
    Part.LineSegment(App.Vector(6.2, 5.6, 0), App.Vector(6.2, 1, 0)),
    Part.LineSegment(App.Vector(6.2, 1, 0), App.Vector(12.2, 1, 0)),
    Part.LineSegment(App.Vector(12.2, 1, 0), App.Vector(12.2, 5.6, 0)),
    Part.LineSegment(App.Vector(12.2, 5.6, 0), App.Vector(6.2, 5.6, 0)),
    Part.LineSegment(App.Vector(14.7, 5.6, 0), App.Vector(14.7, 1, 0)),
    Part.LineSegment(App.Vector(14.7, 1, 0), App.Vector(20.7, 1, 0)),
    Part.LineSegment(App.Vector(20.7, 1, 0), App.Vector(20.7, 5.6, 0)),
    Part.LineSegment(App.Vector(20.7, 5.6, 0), App.Vector(14.7, 5.6, 0)),
    Part.LineSegment(App.Vector(23.2, 5.6, 0), App.Vector(23.2, 1, 0)),
    Part.LineSegment(App.Vector(23.2, 1, 0), App.Vector(29.2, 1, 0)),
    Part.LineSegment(App.Vector(29.2, 1, 0), App.Vector(29.2, 5.6, 0)),
    Part.LineSegment(App.Vector(29.2, 5.6, 0), App.Vector(23.2, 5.6, 0)),
    Part.LineSegment(App.Vector(31.7, 5.6, 0), App.Vector(31.7, 1, 0)),
    Part.LineSegment(App.Vector(31.7, 1, 0), App.Vector(37.7, 1, 0)),
    Part.LineSegment(App.Vector(37.7, 1, 0), App.Vector(37.7, 5.6, 0)),
    Part.LineSegment(App.Vector(37.7, 5.6, 0), App.Vector(31.7, 5.6, 0)),
], False)
sketch10.addConstraint([
    Sketcher.Constraint("Coincident", 0, 2, 1, 1),
    Sketcher.Constraint("Coincident", 1, 2, 2, 1),
    Sketcher.Constraint("Coincident", 2, 2, 3, 1),
    Sketcher.Constraint("Coincident", 3, 2, 0, 1),
    Sketcher.Constraint("Coincident", 4, 2, 5, 1),
    Sketcher.Constraint("Coincident", 5, 2, 6, 1),
    Sketcher.Constraint("Coincident", 6, 2, 7, 1),
    Sketcher.Constraint("Coincident", 7, 2, 4, 1),
    Sketcher.Constraint("Coincident", 8, 2, 9, 1),
    Sketcher.Constraint("Coincident", 9, 2, 10, 1),
    Sketcher.Constraint("Coincident", 10, 2, 11, 1),
    Sketcher.Constraint("Coincident", 11, 2, 8, 1),
    Sketcher.Constraint("Coincident", 12, 2, 13, 1),
    Sketcher.Constraint("Coincident", 13, 2, 14, 1),
    Sketcher.Constraint("Coincident", 14, 2, 15, 1),
    Sketcher.Constraint("Coincident", 15, 2, 12, 1),
    Sketcher.Constraint("Vertical", 0),
    Sketcher.Constraint("Horizontal", 1),
    Sketcher.Constraint("Vertical", 2),
    Sketcher.Constraint("Horizontal", 3),
    Sketcher.Constraint("Vertical", 4),
    Sketcher.Constraint("Horizontal", 5),
    Sketcher.Constraint("Vertical", 6),
    Sketcher.Constraint("Horizontal", 7),
    Sketcher.Constraint("Vertical", 8),
    Sketcher.Constraint("Horizontal", 9),
    Sketcher.Constraint("Vertical", 10),
    Sketcher.Constraint("Horizontal", 11),
    Sketcher.Constraint("Vertical", 12),
    Sketcher.Constraint("Horizontal", 13),
    Sketcher.Constraint("Vertical", 14),
    Sketcher.Constraint("Horizontal", 15),
    Sketcher.Constraint("Horizontal", 1, 2, 4, 2),
    Sketcher.Constraint("Horizontal", 3, 2, 6, 2),
    Sketcher.Constraint("Horizontal", 5, 2, 8, 2),
    Sketcher.Constraint("Horizontal", 7, 2, 10, 2),
    Sketcher.Constraint("Horizontal", 9, 2, 12, 2),
    Sketcher.Constraint("Horizontal", 11, 2, 14, 2),
    Sketcher.Constraint("Equal", 3, 5),
    Sketcher.Constraint("Equal", 7, 9),
    Sketcher.Constraint("Equal", 11, 13),
    Sketcher.Constraint("DistanceX", 1, 1, 1, 2, Q("6 mm")),
    Sketcher.Constraint("DistanceY", 0, 2, 0, 1, Q("4.6 mm")),
    Sketcher.Constraint("DistanceY", -1, 1, 0, 2, Q("1 mm")),
    Sketcher.Constraint("DistanceX", 0, 2, 4, 2, Q("8.5 mm")),
    Sketcher.Constraint("DistanceX", 4, 2, 8, 2, Q("8.5 mm")),
    Sketcher.Constraint("DistanceX", 8, 2, 12, 2, Q("8.5 mm")),
    Sketcher.Constraint("DistanceX", -1, 1, 0, 2, Q("6.2 mm")),
])
pocket3 = body.newObject("PartDesign::Pocket", "Pocket002")
pocket3.Profile = sketch10
pocket3.Type = "ThroughAll"

sketch11 = body.newObject("Sketcher::SketchObject", "Sketch010")
sketch11.AttachmentSupport = (doc.getObject("XY_Plane"), [""])
sketch11.MapMode = "FlatFace"
sketch11.AttachmentOffset = App.Placement(App.Vector(0, 0, -8.2), App.Rotation())
sketch11.addGeometry([
    Part.LineSegment(App.Vector(29.2, 1, 0), App.Vector(23.2, 1, 0)),
    Part.LineSegment(App.Vector(23.2, 1, 0), App.Vector(23.2, 1.4, 0)),
    Part.LineSegment(App.Vector(23.2, 1.4, 0), App.Vector(20.7, 1.4, 0)),
    Part.LineSegment(App.Vector(20.7, 1.4, 0), App.Vector(20.7, 1, 0)),
    Part.LineSegment(App.Vector(20.7, 1, 0), App.Vector(14.7, 1, 0)),
    Part.LineSegment(App.Vector(14.7, 1, 0), App.Vector(14.7, 1.4, 0)),
    Part.LineSegment(App.Vector(14.7, 1.4, 0), App.Vector(12.2, 1.4, 0)),
    Part.LineSegment(App.Vector(12.2, 1.4, 0), App.Vector(12.2, 1, 0)),
    Part.LineSegment(App.Vector(12.2, 1, 0), App.Vector(6.2, 1, 0)),
    Part.LineSegment(App.Vector(6.2, 1, 0), App.Vector(6.2, 1.4, 0)),
    Part.LineSegment(App.Vector(6.2, 1.4, 0), App.Vector(5, 1.4, 0)),
    Part.LineSegment(App.Vector(5, 1.4, 0), App.Vector(5, 0, 0)),
    Part.LineSegment(App.Vector(5, 0, 0), App.Vector(38.9, 0, 0)),
    Part.LineSegment(App.Vector(38.9, 0, 0), App.Vector(38.9, 1.4, 0)),
    Part.LineSegment(App.Vector(38.9, 1.4, 0), App.Vector(37.7, 1.4, 0)),
    Part.LineSegment(App.Vector(37.7, 1.4, 0), App.Vector(37.7, 1, 0)),
    Part.LineSegment(App.Vector(37.7, 1, 0), App.Vector(31.7, 1, 0)),
    Part.LineSegment(App.Vector(31.7, 1, 0), App.Vector(31.7, 1.4, 0)),
    Part.LineSegment(App.Vector(31.7, 1.4, 0), App.Vector(29.2, 1.4, 0)),
    Part.LineSegment(App.Vector(29.2, 1.4, 0), App.Vector(29.2, 1, 0)),
    Part.LineSegment(App.Vector(23.2, 6, 0), App.Vector(23.2, 5.6, 0)),
    Part.LineSegment(App.Vector(23.2, 5.6, 0), App.Vector(29.2, 5.6, 0)),
    Part.LineSegment(App.Vector(29.2, 5.6, 0), App.Vector(29.2, 6, 0)),
    Part.LineSegment(App.Vector(29.2, 6, 0), App.Vector(23.2, 6, 0)),
    Part.LineSegment(App.Vector(14.7, 5.6, 0), App.Vector(20.7, 5.6, 0)),
    Part.LineSegment(App.Vector(20.7, 5.6, 0), App.Vector(20.7, 6, 0)),
    Part.LineSegment(App.Vector(20.7, 6, 0), App.Vector(14.7, 6, 0)),
    Part.LineSegment(App.Vector(14.7, 6, 0), App.Vector(14.7, 5.6, 0)),
    Part.LineSegment(App.Vector(31.7, 6, 0), App.Vector(31.7, 5.6, 0)),
    Part.LineSegment(App.Vector(31.7, 5.6, 0), App.Vector(37.7, 5.6, 0)),
    Part.LineSegment(App.Vector(37.7, 5.6, 0), App.Vector(37.7, 6, 0)),
    Part.LineSegment(App.Vector(37.7, 6, 0), App.Vector(31.7, 6, 0)),
    Part.LineSegment(App.Vector(6.2, 5.6, 0), App.Vector(12.2, 5.6, 0)),
    Part.LineSegment(App.Vector(12.2, 5.6, 0), App.Vector(12.2, 6, 0)),
    Part.LineSegment(App.Vector(12.2, 6, 0), App.Vector(6.2, 6, 0)),
    Part.LineSegment(App.Vector(6.2, 6, 0), App.Vector(6.2, 5.6, 0)),
], False)
sketch11.addConstraint([
    Sketcher.Constraint("Coincident", 0, 2, 1, 1),
    Sketcher.Constraint("Coincident", 1, 2, 2, 1),
    Sketcher.Constraint("Coincident", 2, 2, 3, 1),
    Sketcher.Constraint("Coincident", 3, 2, 4, 1),
    Sketcher.Constraint("Coincident", 4, 2, 5, 1),
    Sketcher.Constraint("Coincident", 5, 2, 6, 1),
    Sketcher.Constraint("Coincident", 6, 2, 7, 1),
    Sketcher.Constraint("Coincident", 7, 2, 8, 1),
    Sketcher.Constraint("Coincident", 8, 2, 9, 1),
    Sketcher.Constraint("Coincident", 9, 2, 10, 1),
    Sketcher.Constraint("Coincident", 10, 2, 11, 1),
    Sketcher.Constraint("Coincident", 11, 2, 12, 1),
    Sketcher.Constraint("Coincident", 12, 2, 13, 1),
    Sketcher.Constraint("Coincident", 13, 2, 14, 1),
    Sketcher.Constraint("Coincident", 14, 2, 15, 1),
    Sketcher.Constraint("Coincident", 15, 2, 16, 1),
    Sketcher.Constraint("Coincident", 16, 2, 17, 1),
    Sketcher.Constraint("Coincident", 17, 2, 18, 1),
    Sketcher.Constraint("Coincident", 18, 2, 19, 1),
    Sketcher.Constraint("Coincident", 19, 2, 0, 1),
    Sketcher.Constraint("Coincident", 20, 2, 21, 1),
    Sketcher.Constraint("Coincident", 21, 2, 22, 1),
    Sketcher.Constraint("Coincident", 22, 2, 23, 1),
    Sketcher.Constraint("Coincident", 23, 2, 20, 1),
    Sketcher.Constraint("Coincident", 24, 2, 25, 1),
    Sketcher.Constraint("Coincident", 25, 2, 26, 1),
    Sketcher.Constraint("Coincident", 26, 2, 27, 1),
    Sketcher.Constraint("Coincident", 27, 2, 24, 1),
    Sketcher.Constraint("Coincident", 28, 2, 29, 1),
    Sketcher.Constraint("Coincident", 29, 2, 30, 1),
    Sketcher.Constraint("Coincident", 30, 2, 31, 1),
    Sketcher.Constraint("Coincident", 31, 2, 28, 1),
    Sketcher.Constraint("Coincident", 32, 2, 33, 1),
    Sketcher.Constraint("Coincident", 33, 2, 34, 1),
    Sketcher.Constraint("Coincident", 34, 2, 35, 1),
    Sketcher.Constraint("Coincident", 35, 2, 32, 1),
    Sketcher.Constraint("Horizontal", 0),
    Sketcher.Constraint("Vertical", 1),
    Sketcher.Constraint("Horizontal", 2),
    Sketcher.Constraint("Vertical", 3),
    Sketcher.Constraint("Horizontal", 4),
    Sketcher.Constraint("Vertical", 5),
    Sketcher.Constraint("Horizontal", 6),
    Sketcher.Constraint("Vertical", 7),
    Sketcher.Constraint("Horizontal", 8),
    Sketcher.Constraint("Vertical", 9),
    Sketcher.Constraint("Horizontal", 10),
    Sketcher.Constraint("Vertical", 11),
    Sketcher.Constraint("Horizontal", 12),
    Sketcher.Constraint("Vertical", 13),
    Sketcher.Constraint("Horizontal", 14),
    Sketcher.Constraint("Vertical", 15),
    Sketcher.Constraint("Horizontal", 16),
    Sketcher.Constraint("Vertical", 17),
    Sketcher.Constraint("Horizontal", 18),
    Sketcher.Constraint("Vertical", 19),
    Sketcher.Constraint("Vertical", 20),
    Sketcher.Constraint("Horizontal", 21),
    Sketcher.Constraint("Vertical", 22),
    Sketcher.Constraint("Horizontal", 23),
    Sketcher.Constraint("Horizontal", 24),
    Sketcher.Constraint("Vertical", 25),
    Sketcher.Constraint("Horizontal", 26),
    Sketcher.Constraint("Vertical", 27),
    Sketcher.Constraint("Vertical", 28),
    Sketcher.Constraint("Horizontal", 29),
    Sketcher.Constraint("Vertical", 30),
    Sketcher.Constraint("Horizontal", 31),
    Sketcher.Constraint("Horizontal", 32),
    Sketcher.Constraint("Vertical", 33),
    Sketcher.Constraint("Horizontal", 34),
    Sketcher.Constraint("Vertical", 35),
    Sketcher.Constraint("PointOnObject", 11, 2, -1),
    Sketcher.Constraint("Horizontal", 0, 2, 3, 2),
    Sketcher.Constraint("Horizontal", 2, 2, 5, 2),
    Sketcher.Constraint("Horizontal", 4, 2, 7, 2),
    Sketcher.Constraint("Horizontal", 6, 2, 9, 2),
    Sketcher.Constraint("Horizontal", 10, 2, 13, 2),
    Sketcher.Constraint("Horizontal", 8, 2, 15, 2),
    Sketcher.Constraint("Horizontal", 14, 2, 17, 2),
    Sketcher.Constraint("Horizontal", 21, 2, 24, 2),
    Sketcher.Constraint("Horizontal", 23, 2, 25, 2),
    Sketcher.Constraint("Horizontal", 27, 2, 28, 2),
    Sketcher.Constraint("Horizontal", 26, 2, 30, 2),
    Sketcher.Constraint("Horizontal", 29, 2, 32, 2),
    Sketcher.Constraint("Horizontal", 31, 2, 33, 2),
    Sketcher.Constraint("Vertical", 1, 2, 20, 2),
    Sketcher.Constraint("Vertical", 19, 2, 21, 2),
    Sketcher.Constraint("Vertical", 3, 2, 24, 2),
    Sketcher.Constraint("Vertical", 5, 2, 26, 2),
    Sketcher.Constraint("Vertical", 17, 2, 28, 2),
    Sketcher.Constraint("Vertical", 15, 2, 29, 2),
    Sketcher.Constraint("Vertical", 7, 2, 32, 2),
    Sketcher.Constraint("Vertical", 9, 2, 34, 2),
    Sketcher.Constraint("Equal", 0, 4),
    Sketcher.Constraint("Equal", 2, 6),
    Sketcher.Constraint("Equal", 4, 8),
    Sketcher.Constraint("Equal", 10, 14),
    Sketcher.Constraint("Equal", 8, 16),
    Sketcher.Constraint("Equal", 6, 18),
    Sketcher.Constraint("Equal", 19, 20),
    Sketcher.Constraint("DistanceX", 10, 2, 10, 1, Q("1.2 mm")),
    Sketcher.Constraint("DistanceY", 11, 2, 11, 1, Q("1.4 mm")),
    Sketcher.Constraint("DistanceX", 0, 2, 0, 1, Q("6 mm")),
    Sketcher.Constraint("DistanceX", 2, 2, 2, 1, Q("2.5 mm")),
    Sketcher.Constraint("DistanceY", 1, 1, 1, 2, Q("0.4 mm")),
    Sketcher.Constraint("DistanceX", -1, 1, 10, 2, Q("5 mm")),
    Sketcher.Constraint("DistanceY", -1, 1, 22, 2, Q("6 mm")),
])
pocket4 = body.newObject("PartDesign::Pocket", "Pocket003")
pocket4.Profile = sketch11
pocket4.Length = 0.5
doc.recompute()

mirrored = body.newObject("PartDesign::Mirrored", "Mirrored")
mirrored.Originals = [pocket4]
mirrored.MirrorPlane = (doc.getObject("XY_Plane"), [""])
body.Tip = mirrored

doc.recompute()
